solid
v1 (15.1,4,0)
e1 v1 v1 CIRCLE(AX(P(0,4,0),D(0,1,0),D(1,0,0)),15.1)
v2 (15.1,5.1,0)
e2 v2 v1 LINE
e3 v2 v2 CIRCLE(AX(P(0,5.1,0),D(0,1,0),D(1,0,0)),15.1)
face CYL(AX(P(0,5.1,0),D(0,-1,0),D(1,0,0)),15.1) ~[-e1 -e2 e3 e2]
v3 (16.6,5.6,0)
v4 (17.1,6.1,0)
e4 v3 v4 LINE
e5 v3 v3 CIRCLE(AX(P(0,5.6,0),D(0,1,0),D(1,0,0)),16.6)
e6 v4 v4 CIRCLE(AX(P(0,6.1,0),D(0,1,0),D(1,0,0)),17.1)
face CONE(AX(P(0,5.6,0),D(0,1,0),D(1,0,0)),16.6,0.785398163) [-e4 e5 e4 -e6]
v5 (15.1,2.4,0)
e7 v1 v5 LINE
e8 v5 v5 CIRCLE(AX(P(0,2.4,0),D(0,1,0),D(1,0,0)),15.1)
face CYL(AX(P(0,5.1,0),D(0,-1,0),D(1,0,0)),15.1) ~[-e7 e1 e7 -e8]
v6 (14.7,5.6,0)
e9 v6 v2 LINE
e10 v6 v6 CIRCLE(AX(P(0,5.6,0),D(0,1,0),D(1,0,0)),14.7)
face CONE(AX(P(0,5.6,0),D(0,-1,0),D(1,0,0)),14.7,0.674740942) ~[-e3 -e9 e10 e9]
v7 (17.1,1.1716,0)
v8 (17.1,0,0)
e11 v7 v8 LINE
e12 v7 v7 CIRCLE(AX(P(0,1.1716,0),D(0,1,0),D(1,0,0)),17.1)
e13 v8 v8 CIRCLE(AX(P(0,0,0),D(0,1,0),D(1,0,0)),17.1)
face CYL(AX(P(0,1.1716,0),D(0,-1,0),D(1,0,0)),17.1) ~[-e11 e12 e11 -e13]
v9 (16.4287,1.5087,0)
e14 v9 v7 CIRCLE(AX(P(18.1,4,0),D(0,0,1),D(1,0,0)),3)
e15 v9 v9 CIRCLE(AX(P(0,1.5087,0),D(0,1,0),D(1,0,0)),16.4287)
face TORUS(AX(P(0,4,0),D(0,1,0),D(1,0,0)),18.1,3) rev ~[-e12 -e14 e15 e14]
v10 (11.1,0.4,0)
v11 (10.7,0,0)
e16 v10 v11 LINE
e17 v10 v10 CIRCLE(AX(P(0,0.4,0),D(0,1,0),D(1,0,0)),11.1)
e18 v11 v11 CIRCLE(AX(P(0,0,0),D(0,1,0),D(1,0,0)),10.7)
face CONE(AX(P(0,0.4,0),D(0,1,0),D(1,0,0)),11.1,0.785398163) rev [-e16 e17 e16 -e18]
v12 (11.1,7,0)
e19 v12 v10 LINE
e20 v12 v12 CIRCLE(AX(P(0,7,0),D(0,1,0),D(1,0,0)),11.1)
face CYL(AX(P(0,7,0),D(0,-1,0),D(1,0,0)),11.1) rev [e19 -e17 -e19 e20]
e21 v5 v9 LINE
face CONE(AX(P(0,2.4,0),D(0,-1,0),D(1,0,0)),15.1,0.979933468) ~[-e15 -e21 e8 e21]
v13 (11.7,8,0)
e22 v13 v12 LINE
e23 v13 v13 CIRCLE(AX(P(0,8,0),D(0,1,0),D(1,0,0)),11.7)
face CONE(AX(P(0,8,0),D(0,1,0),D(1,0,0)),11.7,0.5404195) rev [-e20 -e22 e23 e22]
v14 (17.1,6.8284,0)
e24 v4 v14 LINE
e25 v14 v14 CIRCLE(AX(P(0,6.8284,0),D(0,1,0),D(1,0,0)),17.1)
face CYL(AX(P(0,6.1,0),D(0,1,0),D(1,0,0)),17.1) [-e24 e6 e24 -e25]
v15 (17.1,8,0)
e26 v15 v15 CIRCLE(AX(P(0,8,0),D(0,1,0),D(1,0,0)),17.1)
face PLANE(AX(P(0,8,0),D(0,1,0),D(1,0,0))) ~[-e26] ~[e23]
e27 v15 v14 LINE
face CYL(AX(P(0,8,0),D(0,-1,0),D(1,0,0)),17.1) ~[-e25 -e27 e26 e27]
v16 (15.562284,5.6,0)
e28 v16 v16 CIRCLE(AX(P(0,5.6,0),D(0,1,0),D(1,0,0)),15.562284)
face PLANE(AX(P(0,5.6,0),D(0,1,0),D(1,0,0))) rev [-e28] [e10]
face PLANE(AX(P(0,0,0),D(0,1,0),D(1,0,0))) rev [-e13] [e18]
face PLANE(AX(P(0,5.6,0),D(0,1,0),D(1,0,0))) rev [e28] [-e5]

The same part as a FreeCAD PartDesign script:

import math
import FreeCAD as App
import Part
import Sketcher

V = App.Vector
Q = App.Units.Quantity

doc = App.newDocument("Part")
body = doc.addObject("PartDesign::Body", "Body")

sketch1 = body.newObject("Sketcher::SketchObject", "Sketch")
sketch1.AttachmentSupport = (doc.getObject("XY_Plane"), [""])
sketch1.MapMode = "FlatFace"
sketch1.addGeometry(Part.LineSegment(V(10.7, 0, 0), V(17.1, 0, 0)), False)
sketch1.addGeometry(Part.LineSegment(V(17.1, 0, 0), V(17.1, 1.1716, 0)), False)
sketch1.addGeometry(Part.ArcOfCircle(Part.Circle(V(18.1, 4, 0), V(0, 0, 1), 3), math.radians(-123.855865), math.radians(-109.471393)), False)
sketch1.addGeometry(Part.LineSegment(V(16.4287, 1.5087, 0), V(15.1, 2.4, 0)), False)
sketch1.addGeometry(Part.LineSegment(V(15.1, 2.4, 0), V(15.1, 5.1, 0)), False)
sketch1.addGeometry(Part.LineSegment(V(15.1, 5.1, 0), V(14.7, 5.6, 0)), False)
sketch1.addGeometry(Part.LineSegment(V(14.7, 5.6, 0), V(16.6, 5.6, 0)), False)
sketch1.addGeometry(Part.LineSegment(V(16.6, 5.6, 0), V(17.1, 6.1, 0)), False)
sketch1.addGeometry(Part.LineSegment(V(17.1, 6.1, 0), V(17.1, 8, 0)), False)
sketch1.addGeometry(Part.LineSegment(V(17.1, 8, 0), V(11.7, 8, 0)), False)
sketch1.addGeometry(Part.LineSegment(V(11.7, 8, 0), V(11.1, 7, 0)), False)
sketch1.addGeometry(Part.LineSegment(V(11.1, 7, 0), V(11.1, 0.4, 0)), False)
sketch1.addGeometry(Part.LineSegment(V(11.1, 0.4, 0), V(10.7, 0, 0)), False)
sketch1.addConstraint(Sketcher.Constraint("Coincident", 0, 2, 1, 1))
sketch1.addConstraint(Sketcher.Constraint("Coincident", 1, 2, 2, 2))
sketch1.addConstraint(Sketcher.Constraint("Tangent", 2, 1, 3, 1))
sketch1.addConstraint(Sketcher.Constraint("Coincident", 3, 2, 4, 1))
sketch1.addConstraint(Sketcher.Constraint("Coincident", 4, 2, 5, 1))
sketch1.addConstraint(Sketcher.Constraint("Coincident", 5, 2, 6, 1))
sketch1.addConstraint(Sketcher.Constraint("Coincident", 6, 2, 7, 1))
sketch1.addConstraint(Sketcher.Constraint("Coincident", 7, 2, 8, 1))
sketch1.addConstraint(Sketcher.Constraint("Coincident", 8, 2, 9, 1))
sketch1.addConstraint(Sketcher.Constraint("Coincident", 9, 2, 10, 1))
sketch1.addConstraint(Sketcher.Constraint("Coincident", 10, 2, 11, 1))
sketch1.addConstraint(Sketcher.Constraint("Coincident", 11, 2, 12, 1))
sketch1.addConstraint(Sketcher.Constraint("Coincident", 12, 2, 0, 1))
sketch1.addConstraint(Sketcher.Constraint("Horizontal", 0))
sketch1.addConstraint(Sketcher.Constraint("Vertical", 1))
sketch1.addConstraint(Sketcher.Constraint("Vertical", 4))
sketch1.addConstraint(Sketcher.Constraint("Horizontal", 6))
sketch1.addConstraint(Sketcher.Constraint("Vertical", 8))
sketch1.addConstraint(Sketcher.Constraint("Horizontal", 9))
sketch1.addConstraint(Sketcher.Constraint("Vertical", 11))
sketch1.addConstraint(Sketcher.Constraint("PointOnObject", 0, 2, -1))
sketch1.addConstraint(Sketcher.Constraint("Parallel", 7, 12))
sketch1.addConstraint(Sketcher.Constraint("Vertical", 1, 2, 7, 2))
sketch1.addConstraint(Sketcher.Constraint("Equal", 6, 8))
sketch1.addConstraint(Sketcher.Constraint("Radius", 2, 3.0))
sketch1.addConstraint(Sketcher.Constraint("Angle", 12, Q("-135 deg")))
sketch1.addConstraint(Sketcher.Constraint("DistanceX", 6, 1, 6, 2, 1.9))
sketch1.addConstraint(Sketcher.Constraint("DistanceY", -1, 1, 8, 2, 8.0))
sketch1.addConstraint(Sketcher.Constraint("DistanceX", 0, 2, 2, 3, 1.0))
sketch1.addConstraint(Sketcher.Constraint("DistanceY", 4, 2, 7, 2, 1.0))
sketch1.addConstraint(Sketcher.Constraint("DistanceY", 10, 2, 9, 2, 1.0))
sketch1.addConstraint(Sketcher.Constraint("DistanceX", 10, 2, 7, 2, 6.0))
sketch1.addConstraint(Sketcher.Constraint("DistanceX", -1, 1, 10, 2, 11.1))
sketch1.addConstraint(Sketcher.Constraint("DistanceY", -1, 1, 11, 2, 0.4))
sketch1.addConstraint(Sketcher.Constraint("DistanceX", 5, 2, 4, 2, 0.4))
sketch1.addConstraint(Sketcher.Constraint("DistanceY", 4, 2, 5, 2, 0.5))
sketch1.addConstraint(Sketcher.Constraint("DistanceY", 3, 2, 5, 2, 3.2))
sketch1.addConstraint(Sketcher.Constraint("DistanceX", 10, 2, 9, 2, 0.6))
sketch1.addConstraint(Sketcher.Constraint("DistanceY", -1, 1, 2, 3, 4.0))
revolution = body.newObject("PartDesign::Revolution", "Revolution")
revolution.Profile = sketch1
revolution.ReferenceAxis = (sketch1, ["V_Axis"])
revolution.Angle = 360

doc.recompute()
